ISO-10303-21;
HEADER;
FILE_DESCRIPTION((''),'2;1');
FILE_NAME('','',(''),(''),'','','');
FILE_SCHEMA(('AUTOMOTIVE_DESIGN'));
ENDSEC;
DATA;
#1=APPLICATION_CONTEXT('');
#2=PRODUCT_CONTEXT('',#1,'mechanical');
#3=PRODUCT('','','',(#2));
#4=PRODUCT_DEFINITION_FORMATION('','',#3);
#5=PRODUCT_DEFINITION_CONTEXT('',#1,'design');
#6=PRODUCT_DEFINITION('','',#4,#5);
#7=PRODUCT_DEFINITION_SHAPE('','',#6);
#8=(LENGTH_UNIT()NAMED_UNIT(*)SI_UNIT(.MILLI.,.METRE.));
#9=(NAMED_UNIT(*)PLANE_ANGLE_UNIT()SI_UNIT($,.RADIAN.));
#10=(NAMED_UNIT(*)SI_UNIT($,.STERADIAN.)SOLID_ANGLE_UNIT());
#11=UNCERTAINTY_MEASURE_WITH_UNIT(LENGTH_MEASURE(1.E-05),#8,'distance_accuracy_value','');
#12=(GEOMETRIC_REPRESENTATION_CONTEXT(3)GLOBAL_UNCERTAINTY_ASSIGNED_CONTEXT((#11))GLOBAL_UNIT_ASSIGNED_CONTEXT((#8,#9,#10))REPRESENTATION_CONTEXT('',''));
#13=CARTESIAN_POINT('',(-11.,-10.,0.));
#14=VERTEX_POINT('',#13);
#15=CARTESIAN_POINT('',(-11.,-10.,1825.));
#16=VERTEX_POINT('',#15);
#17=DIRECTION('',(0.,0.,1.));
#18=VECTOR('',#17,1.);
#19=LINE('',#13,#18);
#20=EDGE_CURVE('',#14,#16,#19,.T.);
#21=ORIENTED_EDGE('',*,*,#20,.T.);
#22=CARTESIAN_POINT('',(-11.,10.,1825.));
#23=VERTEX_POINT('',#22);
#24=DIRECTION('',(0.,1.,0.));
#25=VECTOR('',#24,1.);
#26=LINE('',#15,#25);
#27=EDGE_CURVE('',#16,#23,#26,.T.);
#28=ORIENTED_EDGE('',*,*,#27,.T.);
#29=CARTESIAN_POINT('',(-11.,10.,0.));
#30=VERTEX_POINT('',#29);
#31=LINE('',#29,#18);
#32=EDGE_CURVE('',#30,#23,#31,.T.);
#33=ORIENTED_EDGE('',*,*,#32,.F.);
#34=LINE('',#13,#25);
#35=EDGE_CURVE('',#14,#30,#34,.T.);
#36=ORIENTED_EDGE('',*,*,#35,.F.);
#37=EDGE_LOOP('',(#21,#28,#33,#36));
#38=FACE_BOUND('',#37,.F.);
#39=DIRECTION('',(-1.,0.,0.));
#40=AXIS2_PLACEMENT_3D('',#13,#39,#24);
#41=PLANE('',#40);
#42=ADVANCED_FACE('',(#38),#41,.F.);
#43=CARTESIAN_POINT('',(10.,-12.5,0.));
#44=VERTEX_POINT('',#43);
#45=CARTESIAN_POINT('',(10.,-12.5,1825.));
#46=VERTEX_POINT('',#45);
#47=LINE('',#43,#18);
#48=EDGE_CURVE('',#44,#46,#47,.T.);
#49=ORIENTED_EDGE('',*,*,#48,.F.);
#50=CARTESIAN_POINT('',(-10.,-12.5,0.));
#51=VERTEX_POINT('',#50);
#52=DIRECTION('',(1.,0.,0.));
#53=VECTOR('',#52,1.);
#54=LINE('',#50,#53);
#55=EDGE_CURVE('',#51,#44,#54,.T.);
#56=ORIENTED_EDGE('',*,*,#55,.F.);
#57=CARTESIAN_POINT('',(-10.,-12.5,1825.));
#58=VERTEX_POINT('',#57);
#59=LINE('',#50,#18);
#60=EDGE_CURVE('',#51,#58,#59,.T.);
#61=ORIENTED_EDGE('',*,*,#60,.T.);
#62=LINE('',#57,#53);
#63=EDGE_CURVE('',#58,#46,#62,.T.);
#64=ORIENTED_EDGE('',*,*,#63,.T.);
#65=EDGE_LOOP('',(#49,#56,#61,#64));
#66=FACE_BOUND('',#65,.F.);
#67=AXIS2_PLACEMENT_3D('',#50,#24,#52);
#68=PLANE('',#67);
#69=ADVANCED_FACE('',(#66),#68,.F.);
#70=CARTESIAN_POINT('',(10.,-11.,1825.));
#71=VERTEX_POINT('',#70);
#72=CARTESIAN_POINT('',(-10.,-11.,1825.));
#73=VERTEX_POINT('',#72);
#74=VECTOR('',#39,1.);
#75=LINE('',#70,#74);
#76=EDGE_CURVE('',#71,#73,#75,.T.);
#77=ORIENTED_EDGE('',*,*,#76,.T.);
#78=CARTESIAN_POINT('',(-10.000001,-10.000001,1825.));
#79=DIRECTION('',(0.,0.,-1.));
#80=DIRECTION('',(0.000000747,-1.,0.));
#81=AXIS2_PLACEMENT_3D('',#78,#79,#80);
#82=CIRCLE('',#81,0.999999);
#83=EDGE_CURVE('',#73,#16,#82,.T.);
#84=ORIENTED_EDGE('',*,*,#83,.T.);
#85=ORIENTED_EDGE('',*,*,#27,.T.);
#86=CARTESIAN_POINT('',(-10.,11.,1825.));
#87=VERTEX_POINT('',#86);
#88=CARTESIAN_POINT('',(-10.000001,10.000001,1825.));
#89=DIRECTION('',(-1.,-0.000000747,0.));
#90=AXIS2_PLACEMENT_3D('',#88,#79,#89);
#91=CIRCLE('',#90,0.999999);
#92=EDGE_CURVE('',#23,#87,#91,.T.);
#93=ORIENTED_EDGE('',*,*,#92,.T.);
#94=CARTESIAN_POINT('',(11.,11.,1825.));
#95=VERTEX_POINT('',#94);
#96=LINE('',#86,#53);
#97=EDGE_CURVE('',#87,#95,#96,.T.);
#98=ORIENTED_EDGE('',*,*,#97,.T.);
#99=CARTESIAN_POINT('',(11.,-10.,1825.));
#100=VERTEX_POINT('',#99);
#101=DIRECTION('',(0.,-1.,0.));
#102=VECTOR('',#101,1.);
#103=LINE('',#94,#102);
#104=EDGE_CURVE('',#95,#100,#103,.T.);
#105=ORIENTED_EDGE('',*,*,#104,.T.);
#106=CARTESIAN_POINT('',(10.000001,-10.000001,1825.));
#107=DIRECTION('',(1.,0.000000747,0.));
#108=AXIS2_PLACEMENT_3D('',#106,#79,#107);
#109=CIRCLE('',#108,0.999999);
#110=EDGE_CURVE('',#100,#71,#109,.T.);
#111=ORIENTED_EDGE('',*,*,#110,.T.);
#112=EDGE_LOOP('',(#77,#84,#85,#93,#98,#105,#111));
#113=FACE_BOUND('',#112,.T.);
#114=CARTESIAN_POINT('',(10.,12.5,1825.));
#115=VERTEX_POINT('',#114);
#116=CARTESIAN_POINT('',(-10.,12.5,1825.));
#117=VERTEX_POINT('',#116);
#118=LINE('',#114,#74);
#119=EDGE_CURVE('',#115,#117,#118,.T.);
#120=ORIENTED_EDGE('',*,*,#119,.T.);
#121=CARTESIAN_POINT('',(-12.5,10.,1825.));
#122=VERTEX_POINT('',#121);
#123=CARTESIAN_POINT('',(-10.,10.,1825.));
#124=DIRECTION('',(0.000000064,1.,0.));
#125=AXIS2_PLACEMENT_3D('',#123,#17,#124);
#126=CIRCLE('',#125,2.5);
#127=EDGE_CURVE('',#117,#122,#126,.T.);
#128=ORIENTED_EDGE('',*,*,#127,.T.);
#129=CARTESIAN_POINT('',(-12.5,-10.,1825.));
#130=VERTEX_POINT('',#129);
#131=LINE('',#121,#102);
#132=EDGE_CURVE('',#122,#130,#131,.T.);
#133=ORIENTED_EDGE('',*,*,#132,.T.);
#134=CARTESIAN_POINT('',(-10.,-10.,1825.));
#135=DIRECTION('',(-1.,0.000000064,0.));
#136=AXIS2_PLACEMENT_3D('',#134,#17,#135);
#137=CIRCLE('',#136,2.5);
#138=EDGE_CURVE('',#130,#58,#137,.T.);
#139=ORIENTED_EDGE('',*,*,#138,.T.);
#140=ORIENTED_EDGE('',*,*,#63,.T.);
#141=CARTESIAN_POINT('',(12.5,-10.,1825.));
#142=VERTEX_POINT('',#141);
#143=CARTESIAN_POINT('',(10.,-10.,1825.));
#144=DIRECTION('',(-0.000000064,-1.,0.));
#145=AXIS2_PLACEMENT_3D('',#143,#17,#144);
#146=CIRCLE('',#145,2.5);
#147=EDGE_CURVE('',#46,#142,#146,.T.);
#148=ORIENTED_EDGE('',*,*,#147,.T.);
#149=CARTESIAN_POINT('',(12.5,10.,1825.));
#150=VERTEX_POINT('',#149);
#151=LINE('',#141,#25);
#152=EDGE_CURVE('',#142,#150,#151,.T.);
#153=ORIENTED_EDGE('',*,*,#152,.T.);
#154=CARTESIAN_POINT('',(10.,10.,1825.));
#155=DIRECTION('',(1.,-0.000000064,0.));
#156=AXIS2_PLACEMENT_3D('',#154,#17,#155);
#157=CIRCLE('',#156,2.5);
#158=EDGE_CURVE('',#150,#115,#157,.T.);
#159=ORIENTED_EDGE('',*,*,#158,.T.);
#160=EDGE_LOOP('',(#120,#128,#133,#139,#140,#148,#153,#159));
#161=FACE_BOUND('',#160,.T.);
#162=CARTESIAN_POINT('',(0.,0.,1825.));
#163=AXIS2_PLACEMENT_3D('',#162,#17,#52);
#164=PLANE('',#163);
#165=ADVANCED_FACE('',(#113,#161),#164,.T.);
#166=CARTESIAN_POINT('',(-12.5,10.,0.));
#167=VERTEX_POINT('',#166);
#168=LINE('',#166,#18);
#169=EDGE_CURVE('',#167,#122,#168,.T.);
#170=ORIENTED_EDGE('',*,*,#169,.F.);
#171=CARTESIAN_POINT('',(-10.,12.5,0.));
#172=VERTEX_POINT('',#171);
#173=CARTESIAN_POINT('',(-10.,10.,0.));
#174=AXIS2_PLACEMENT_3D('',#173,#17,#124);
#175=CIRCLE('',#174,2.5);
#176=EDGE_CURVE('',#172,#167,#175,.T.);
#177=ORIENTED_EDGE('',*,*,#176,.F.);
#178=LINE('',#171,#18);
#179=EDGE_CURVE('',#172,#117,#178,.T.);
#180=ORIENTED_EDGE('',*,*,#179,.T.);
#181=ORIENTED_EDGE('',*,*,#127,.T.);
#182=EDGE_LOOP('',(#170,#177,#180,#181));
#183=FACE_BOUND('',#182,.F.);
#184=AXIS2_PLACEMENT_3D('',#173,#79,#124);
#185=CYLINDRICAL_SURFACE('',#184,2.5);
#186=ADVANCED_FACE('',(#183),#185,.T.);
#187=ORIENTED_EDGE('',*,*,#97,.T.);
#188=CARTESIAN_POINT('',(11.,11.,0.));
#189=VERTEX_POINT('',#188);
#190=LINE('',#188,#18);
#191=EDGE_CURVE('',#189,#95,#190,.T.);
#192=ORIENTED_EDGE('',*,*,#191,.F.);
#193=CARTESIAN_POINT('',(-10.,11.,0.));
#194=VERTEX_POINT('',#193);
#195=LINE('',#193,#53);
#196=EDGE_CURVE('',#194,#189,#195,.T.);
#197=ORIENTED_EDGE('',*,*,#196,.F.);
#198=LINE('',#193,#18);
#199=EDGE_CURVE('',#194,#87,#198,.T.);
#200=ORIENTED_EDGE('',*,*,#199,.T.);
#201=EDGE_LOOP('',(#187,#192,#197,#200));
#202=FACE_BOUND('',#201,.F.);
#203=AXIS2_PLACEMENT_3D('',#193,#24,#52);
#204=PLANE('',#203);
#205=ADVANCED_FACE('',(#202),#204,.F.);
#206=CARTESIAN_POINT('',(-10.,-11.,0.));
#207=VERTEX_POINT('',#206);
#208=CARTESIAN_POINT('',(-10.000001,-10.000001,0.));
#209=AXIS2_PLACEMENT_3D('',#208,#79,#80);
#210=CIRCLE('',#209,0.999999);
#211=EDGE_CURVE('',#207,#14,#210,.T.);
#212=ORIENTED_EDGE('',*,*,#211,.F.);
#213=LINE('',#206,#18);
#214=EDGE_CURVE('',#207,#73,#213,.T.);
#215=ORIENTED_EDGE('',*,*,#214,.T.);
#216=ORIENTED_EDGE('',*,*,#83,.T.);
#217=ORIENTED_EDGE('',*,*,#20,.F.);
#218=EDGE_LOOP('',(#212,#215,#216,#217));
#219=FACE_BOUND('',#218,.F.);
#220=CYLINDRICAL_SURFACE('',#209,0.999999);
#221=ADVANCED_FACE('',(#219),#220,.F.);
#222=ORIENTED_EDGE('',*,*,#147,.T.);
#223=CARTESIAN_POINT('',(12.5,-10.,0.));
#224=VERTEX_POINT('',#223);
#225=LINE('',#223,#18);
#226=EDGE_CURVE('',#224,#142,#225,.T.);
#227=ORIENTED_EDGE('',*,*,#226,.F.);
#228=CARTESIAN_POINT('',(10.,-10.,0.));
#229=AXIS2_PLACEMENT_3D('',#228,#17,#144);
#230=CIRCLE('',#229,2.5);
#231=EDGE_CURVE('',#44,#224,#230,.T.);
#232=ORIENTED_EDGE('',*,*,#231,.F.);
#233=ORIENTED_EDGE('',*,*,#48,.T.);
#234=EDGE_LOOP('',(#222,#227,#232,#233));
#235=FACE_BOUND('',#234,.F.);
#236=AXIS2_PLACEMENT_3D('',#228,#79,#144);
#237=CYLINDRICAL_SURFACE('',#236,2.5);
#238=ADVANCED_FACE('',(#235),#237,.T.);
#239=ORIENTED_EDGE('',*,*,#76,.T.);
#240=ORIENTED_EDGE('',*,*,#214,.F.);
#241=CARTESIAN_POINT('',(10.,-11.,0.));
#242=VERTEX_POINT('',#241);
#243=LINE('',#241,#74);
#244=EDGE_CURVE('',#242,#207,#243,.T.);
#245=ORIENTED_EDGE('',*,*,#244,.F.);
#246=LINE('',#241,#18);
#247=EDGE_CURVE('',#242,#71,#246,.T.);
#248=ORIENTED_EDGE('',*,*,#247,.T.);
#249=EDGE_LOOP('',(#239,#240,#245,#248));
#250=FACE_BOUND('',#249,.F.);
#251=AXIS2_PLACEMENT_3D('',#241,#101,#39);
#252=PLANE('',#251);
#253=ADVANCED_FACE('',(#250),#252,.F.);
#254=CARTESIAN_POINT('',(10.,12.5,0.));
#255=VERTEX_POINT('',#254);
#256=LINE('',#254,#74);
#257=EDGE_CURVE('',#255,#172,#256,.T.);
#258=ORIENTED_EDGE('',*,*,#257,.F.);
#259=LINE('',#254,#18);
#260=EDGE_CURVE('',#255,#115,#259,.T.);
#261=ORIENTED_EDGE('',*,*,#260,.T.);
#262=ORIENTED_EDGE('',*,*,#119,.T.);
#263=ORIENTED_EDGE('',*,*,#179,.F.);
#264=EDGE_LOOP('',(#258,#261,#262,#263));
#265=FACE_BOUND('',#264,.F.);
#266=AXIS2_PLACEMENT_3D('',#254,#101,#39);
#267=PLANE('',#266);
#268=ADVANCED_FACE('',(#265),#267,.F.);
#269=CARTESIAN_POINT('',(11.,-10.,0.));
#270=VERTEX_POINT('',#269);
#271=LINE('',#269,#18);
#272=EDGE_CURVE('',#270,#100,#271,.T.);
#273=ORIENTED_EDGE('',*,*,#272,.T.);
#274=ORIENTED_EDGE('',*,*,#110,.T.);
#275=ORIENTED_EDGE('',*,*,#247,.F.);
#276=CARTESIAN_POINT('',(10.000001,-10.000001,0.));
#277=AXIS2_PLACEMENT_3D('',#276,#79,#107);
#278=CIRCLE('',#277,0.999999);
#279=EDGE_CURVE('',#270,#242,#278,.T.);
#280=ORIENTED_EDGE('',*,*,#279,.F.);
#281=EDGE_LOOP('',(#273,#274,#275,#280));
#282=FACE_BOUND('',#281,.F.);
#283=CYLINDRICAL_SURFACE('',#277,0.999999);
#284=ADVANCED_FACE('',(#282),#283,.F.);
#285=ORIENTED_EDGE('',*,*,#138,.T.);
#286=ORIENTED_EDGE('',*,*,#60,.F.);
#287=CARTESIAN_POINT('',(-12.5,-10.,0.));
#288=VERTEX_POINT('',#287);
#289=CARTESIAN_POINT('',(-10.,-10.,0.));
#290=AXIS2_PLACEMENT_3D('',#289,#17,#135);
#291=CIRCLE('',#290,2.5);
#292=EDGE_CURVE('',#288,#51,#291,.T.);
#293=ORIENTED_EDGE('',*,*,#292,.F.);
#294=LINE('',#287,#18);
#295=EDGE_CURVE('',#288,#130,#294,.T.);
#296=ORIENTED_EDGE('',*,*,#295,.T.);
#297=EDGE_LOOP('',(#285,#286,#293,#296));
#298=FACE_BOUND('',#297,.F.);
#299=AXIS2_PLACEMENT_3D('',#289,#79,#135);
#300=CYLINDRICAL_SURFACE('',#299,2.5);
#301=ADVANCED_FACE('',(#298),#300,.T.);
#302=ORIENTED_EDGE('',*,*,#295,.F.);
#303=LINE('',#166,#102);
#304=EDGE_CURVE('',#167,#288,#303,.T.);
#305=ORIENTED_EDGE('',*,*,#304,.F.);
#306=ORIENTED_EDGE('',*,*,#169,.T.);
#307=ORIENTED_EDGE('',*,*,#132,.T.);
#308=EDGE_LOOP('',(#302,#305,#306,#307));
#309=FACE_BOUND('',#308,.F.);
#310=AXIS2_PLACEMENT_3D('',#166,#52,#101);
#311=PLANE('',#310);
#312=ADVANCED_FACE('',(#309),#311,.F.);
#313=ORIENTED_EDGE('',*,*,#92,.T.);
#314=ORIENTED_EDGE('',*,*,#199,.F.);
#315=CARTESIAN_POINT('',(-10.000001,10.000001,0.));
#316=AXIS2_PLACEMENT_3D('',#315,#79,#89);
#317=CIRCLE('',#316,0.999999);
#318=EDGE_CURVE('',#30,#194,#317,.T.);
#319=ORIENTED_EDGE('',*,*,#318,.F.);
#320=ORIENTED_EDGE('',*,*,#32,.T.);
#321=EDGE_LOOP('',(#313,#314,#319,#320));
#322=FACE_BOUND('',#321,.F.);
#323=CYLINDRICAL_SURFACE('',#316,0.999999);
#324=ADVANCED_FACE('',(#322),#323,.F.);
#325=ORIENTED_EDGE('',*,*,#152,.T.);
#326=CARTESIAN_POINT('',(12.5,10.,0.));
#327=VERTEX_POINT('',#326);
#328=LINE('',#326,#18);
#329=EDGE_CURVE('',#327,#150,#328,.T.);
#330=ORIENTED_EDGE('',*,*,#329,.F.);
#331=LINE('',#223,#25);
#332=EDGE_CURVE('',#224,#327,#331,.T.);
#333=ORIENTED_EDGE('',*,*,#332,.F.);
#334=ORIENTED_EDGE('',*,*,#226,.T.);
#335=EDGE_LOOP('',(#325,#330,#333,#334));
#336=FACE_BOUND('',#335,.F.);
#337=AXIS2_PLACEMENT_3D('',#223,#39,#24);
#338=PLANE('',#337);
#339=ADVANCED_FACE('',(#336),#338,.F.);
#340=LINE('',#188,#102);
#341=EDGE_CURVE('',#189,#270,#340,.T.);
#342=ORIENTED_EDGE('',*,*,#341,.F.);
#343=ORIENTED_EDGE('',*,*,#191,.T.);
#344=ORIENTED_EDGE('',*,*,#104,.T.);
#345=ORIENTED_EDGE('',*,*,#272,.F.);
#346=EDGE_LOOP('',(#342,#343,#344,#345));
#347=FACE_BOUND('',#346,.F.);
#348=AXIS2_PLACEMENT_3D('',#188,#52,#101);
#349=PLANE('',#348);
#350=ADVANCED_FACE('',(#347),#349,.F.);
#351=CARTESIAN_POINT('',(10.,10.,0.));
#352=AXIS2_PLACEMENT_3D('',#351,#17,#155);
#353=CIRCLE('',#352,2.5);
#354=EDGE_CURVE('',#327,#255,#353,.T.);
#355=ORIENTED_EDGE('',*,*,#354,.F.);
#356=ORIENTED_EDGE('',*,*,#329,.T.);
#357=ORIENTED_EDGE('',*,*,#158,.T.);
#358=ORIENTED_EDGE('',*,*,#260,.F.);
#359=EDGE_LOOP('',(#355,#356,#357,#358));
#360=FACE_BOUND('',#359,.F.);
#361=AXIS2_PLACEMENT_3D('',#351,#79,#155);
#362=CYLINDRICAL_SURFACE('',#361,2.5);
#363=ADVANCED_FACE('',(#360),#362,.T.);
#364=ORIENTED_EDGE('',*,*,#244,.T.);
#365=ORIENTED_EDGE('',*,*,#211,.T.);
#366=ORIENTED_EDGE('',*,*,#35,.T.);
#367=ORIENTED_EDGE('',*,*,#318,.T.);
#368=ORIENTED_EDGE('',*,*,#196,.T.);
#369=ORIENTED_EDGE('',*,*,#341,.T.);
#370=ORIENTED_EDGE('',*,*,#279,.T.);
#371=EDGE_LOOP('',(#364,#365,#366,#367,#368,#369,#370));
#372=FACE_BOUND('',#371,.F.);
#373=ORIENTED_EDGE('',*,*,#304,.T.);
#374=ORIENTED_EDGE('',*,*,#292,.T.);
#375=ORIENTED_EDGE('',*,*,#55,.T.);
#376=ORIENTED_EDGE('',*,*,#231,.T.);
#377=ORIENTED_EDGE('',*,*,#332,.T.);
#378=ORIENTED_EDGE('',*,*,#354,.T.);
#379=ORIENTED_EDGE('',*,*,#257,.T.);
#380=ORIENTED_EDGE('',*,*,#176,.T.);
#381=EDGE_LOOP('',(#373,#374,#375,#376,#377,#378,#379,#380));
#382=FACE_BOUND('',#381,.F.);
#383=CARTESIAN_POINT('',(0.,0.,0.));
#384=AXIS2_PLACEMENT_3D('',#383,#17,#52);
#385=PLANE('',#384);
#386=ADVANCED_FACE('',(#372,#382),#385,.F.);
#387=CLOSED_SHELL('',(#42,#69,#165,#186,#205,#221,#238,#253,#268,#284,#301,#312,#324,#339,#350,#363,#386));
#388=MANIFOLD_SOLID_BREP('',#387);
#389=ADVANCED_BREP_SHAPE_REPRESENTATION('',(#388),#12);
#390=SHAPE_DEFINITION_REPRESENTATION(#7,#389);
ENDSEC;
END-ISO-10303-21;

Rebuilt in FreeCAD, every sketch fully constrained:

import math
import FreeCAD as App
import Part
import Sketcher
from FreeCAD import Vector
Q = App.Units.Quantity

doc = App.newDocument("Part")
params = doc.addObject("Spreadsheet::Sheet", "Params")
for row, (alias, value) in enumerate([
    ("sketch1_radius", "0.999999 mm"),
    ("sketch1_radius2", "2.5 mm"),
    ("sketch1_width", "20 mm"),
    ("pad1_length", "1825 mm"),
], start=1):
    params.set(f"A{row}", alias)
    params.set(f"B{row}", "=" + value)
    params.setAlias(f"B{row}", alias)

body = doc.addObject("PartDesign::Body", "Body")

# Sketch on XY plane
sketch1 = body.newObject("Sketcher::SketchObject", "Sketch")
sketch1.AttachmentSupport = (doc.getObject("XY_Plane"), [""])
sketch1.MapMode = "FlatFace"
sketch1.addGeometry(Part.ArcOfCircle(Part.Circle(Vector(10, 10, 0), Vector(0, 0, 1), 2.5), math.radians(0), math.radians(90)), False)
sketch1.addGeometry(Part.LineSegment(Vector(10, 12.5, 0), Vector(-10, 12.5, 0)), False)
sketch1.addGeometry(Part.ArcOfCircle(Part.Circle(Vector(-10, 10, 0), Vector(0, 0, 1), 2.5), math.radians(90), math.radians(180)), False)
sketch1.addGeometry(Part.LineSegment(Vector(-12.5, 10, 0), Vector(-12.5, -10, 0)), False)
sketch1.addGeometry(Part.ArcOfCircle(Part.Circle(Vector(-10, -10, 0), Vector(0, 0, 1), 2.5), math.radians(180), math.radians(270)), False)
sketch1.addGeometry(Part.LineSegment(Vector(-10, -12.5, 0), Vector(10, -12.5, 0)), False)
sketch1.addGeometry(Part.ArcOfCircle(Part.Circle(Vector(10, -10, 0), Vector(0, 0, 1), 2.5), math.radians(-90), math.radians(0)), False)
sketch1.addGeometry(Part.LineSegment(Vector(12.5, -10, 0), Vector(12.5, 10, 0)), False)
sketch1.addGeometry(Part.LineSegment(Vector(11, 11, 0), Vector(11, -10, 0)), False)
sketch1.addGeometry(Part.ArcOfCircle(Part.Circle(Vector(10, -10, 0), Vector(0, 0, 1), 1), math.radians(-90), math.radians(0)), False)
sketch1.addGeometry(Part.LineSegment(Vector(10, -11, 0), Vector(-10, -11, 0)), False)
sketch1.addGeometry(Part.ArcOfCircle(Part.Circle(Vector(-10, -10, 0), Vector(0, 0, 1), 1), math.radians(180), math.radians(270)), False)
sketch1.addGeometry(Part.LineSegment(Vector(-11, -10, 0), Vector(-11, 10, 0)), False)
sketch1.addGeometry(Part.ArcOfCircle(Part.Circle(Vector(-10, 10, 0), Vector(0, 0, 1), 1), math.radians(90), math.radians(180)), False)
sketch1.addGeometry(Part.LineSegment(Vector(-10, 11, 0), Vector(11, 11, 0)), False)
sketch1.addConstraint(Sketcher.Constraint("Tangent", 0, 2, 1, 1))
sketch1.addConstraint(Sketcher.Constraint("Tangent", 1, 2, 2, 1))
sketch1.addConstraint(Sketcher.Constraint("Tangent", 2, 2, 3, 1))
sketch1.addConstraint(Sketcher.Constraint("Tangent", 3, 2, 4, 1))
sketch1.addConstraint(Sketcher.Constraint("Tangent", 4, 2, 5, 1))
sketch1.addConstraint(Sketcher.Constraint("Tangent", 5, 2, 6, 1))
sketch1.addConstraint(Sketcher.Constraint("Tangent", 6, 2, 7, 1))
sketch1.addConstraint(Sketcher.Constraint("Tangent", 7, 2, 0, 1))
sketch1.addConstraint(Sketcher.Constraint("Tangent", 8, 2, 9, 2))
sketch1.addConstraint(Sketcher.Constraint("Tangent", 9, 1, 10, 1))
sketch1.addConstraint(Sketcher.Constraint("Tangent", 10, 2, 11, 2))
sketch1.addConstraint(Sketcher.Constraint("Tangent", 11, 1, 12, 1))
sketch1.addConstraint(Sketcher.Constraint("Tangent", 12, 2, 13, 2))
sketch1.addConstraint(Sketcher.Constraint("Tangent", 13, 1, 14, 1))
sketch1.addConstraint(Sketcher.Constraint("Coincident", 14, 2, 8, 1))
sketch1.addConstraint(Sketcher.Constraint("Horizontal", 1))
sketch1.addConstraint(Sketcher.Constraint("Vertical", 3))
sketch1.addConstraint(Sketcher.Constraint("Horizontal", 5))
sketch1.addConstraint(Sketcher.Constraint("Vertical", 7))
sketch1.addConstraint(Sketcher.Constraint("Vertical", 8))
sketch1.addConstraint(Sketcher.Constraint("Horizontal", 10))
sketch1.addConstraint(Sketcher.Constraint("Vertical", 12))
sketch1.addConstraint(Sketcher.Constraint("Horizontal", 14))
sketch1.addConstraint(Sketcher.Constraint("Coincident", 9, 3, 6, 3))
sketch1.addConstraint(Sketcher.Constraint("Coincident", 11, 3, 4, 3))
sketch1.addConstraint(Sketcher.Constraint("Coincident", 13, 3, 2, 3))
sketch1.addConstraint(Sketcher.Constraint("Equal", 0, 2))
sketch1.addConstraint(Sketcher.Constraint("Equal", 2, 4))
sketch1.addConstraint(Sketcher.Constraint("Equal", 4, 6))
sketch1.addConstraint(Sketcher.Constraint("Symmetric", 0, 3, 4, 3, -1, 1))
sketch1.addConstraint(Sketcher.Constraint("Equal", 10, 3))
sketch1.addConstraint(Sketcher.Constraint("Radius", 9, Q("0.999999 mm")))
sketch1.addConstraint(Sketcher.Constraint("Radius", 0, Q("2.5 mm")))
sketch1.addConstraint(Sketcher.Constraint("DistanceX", 1, 2, 1, 1, Q("20 mm")))
sketch1.setExpression("Constraints[31]", "Params.sketch1_radius")
sketch1.setExpression("Constraints[32]", "Params.sketch1_radius2")
sketch1.setExpression("Constraints[33]", "Params.sketch1_width")
pad1 = body.newObject("PartDesign::Pad", "Pad")
pad1.Profile = sketch1
pad1.setExpression("Length", "Params.pad1_length")

doc.recompute()
